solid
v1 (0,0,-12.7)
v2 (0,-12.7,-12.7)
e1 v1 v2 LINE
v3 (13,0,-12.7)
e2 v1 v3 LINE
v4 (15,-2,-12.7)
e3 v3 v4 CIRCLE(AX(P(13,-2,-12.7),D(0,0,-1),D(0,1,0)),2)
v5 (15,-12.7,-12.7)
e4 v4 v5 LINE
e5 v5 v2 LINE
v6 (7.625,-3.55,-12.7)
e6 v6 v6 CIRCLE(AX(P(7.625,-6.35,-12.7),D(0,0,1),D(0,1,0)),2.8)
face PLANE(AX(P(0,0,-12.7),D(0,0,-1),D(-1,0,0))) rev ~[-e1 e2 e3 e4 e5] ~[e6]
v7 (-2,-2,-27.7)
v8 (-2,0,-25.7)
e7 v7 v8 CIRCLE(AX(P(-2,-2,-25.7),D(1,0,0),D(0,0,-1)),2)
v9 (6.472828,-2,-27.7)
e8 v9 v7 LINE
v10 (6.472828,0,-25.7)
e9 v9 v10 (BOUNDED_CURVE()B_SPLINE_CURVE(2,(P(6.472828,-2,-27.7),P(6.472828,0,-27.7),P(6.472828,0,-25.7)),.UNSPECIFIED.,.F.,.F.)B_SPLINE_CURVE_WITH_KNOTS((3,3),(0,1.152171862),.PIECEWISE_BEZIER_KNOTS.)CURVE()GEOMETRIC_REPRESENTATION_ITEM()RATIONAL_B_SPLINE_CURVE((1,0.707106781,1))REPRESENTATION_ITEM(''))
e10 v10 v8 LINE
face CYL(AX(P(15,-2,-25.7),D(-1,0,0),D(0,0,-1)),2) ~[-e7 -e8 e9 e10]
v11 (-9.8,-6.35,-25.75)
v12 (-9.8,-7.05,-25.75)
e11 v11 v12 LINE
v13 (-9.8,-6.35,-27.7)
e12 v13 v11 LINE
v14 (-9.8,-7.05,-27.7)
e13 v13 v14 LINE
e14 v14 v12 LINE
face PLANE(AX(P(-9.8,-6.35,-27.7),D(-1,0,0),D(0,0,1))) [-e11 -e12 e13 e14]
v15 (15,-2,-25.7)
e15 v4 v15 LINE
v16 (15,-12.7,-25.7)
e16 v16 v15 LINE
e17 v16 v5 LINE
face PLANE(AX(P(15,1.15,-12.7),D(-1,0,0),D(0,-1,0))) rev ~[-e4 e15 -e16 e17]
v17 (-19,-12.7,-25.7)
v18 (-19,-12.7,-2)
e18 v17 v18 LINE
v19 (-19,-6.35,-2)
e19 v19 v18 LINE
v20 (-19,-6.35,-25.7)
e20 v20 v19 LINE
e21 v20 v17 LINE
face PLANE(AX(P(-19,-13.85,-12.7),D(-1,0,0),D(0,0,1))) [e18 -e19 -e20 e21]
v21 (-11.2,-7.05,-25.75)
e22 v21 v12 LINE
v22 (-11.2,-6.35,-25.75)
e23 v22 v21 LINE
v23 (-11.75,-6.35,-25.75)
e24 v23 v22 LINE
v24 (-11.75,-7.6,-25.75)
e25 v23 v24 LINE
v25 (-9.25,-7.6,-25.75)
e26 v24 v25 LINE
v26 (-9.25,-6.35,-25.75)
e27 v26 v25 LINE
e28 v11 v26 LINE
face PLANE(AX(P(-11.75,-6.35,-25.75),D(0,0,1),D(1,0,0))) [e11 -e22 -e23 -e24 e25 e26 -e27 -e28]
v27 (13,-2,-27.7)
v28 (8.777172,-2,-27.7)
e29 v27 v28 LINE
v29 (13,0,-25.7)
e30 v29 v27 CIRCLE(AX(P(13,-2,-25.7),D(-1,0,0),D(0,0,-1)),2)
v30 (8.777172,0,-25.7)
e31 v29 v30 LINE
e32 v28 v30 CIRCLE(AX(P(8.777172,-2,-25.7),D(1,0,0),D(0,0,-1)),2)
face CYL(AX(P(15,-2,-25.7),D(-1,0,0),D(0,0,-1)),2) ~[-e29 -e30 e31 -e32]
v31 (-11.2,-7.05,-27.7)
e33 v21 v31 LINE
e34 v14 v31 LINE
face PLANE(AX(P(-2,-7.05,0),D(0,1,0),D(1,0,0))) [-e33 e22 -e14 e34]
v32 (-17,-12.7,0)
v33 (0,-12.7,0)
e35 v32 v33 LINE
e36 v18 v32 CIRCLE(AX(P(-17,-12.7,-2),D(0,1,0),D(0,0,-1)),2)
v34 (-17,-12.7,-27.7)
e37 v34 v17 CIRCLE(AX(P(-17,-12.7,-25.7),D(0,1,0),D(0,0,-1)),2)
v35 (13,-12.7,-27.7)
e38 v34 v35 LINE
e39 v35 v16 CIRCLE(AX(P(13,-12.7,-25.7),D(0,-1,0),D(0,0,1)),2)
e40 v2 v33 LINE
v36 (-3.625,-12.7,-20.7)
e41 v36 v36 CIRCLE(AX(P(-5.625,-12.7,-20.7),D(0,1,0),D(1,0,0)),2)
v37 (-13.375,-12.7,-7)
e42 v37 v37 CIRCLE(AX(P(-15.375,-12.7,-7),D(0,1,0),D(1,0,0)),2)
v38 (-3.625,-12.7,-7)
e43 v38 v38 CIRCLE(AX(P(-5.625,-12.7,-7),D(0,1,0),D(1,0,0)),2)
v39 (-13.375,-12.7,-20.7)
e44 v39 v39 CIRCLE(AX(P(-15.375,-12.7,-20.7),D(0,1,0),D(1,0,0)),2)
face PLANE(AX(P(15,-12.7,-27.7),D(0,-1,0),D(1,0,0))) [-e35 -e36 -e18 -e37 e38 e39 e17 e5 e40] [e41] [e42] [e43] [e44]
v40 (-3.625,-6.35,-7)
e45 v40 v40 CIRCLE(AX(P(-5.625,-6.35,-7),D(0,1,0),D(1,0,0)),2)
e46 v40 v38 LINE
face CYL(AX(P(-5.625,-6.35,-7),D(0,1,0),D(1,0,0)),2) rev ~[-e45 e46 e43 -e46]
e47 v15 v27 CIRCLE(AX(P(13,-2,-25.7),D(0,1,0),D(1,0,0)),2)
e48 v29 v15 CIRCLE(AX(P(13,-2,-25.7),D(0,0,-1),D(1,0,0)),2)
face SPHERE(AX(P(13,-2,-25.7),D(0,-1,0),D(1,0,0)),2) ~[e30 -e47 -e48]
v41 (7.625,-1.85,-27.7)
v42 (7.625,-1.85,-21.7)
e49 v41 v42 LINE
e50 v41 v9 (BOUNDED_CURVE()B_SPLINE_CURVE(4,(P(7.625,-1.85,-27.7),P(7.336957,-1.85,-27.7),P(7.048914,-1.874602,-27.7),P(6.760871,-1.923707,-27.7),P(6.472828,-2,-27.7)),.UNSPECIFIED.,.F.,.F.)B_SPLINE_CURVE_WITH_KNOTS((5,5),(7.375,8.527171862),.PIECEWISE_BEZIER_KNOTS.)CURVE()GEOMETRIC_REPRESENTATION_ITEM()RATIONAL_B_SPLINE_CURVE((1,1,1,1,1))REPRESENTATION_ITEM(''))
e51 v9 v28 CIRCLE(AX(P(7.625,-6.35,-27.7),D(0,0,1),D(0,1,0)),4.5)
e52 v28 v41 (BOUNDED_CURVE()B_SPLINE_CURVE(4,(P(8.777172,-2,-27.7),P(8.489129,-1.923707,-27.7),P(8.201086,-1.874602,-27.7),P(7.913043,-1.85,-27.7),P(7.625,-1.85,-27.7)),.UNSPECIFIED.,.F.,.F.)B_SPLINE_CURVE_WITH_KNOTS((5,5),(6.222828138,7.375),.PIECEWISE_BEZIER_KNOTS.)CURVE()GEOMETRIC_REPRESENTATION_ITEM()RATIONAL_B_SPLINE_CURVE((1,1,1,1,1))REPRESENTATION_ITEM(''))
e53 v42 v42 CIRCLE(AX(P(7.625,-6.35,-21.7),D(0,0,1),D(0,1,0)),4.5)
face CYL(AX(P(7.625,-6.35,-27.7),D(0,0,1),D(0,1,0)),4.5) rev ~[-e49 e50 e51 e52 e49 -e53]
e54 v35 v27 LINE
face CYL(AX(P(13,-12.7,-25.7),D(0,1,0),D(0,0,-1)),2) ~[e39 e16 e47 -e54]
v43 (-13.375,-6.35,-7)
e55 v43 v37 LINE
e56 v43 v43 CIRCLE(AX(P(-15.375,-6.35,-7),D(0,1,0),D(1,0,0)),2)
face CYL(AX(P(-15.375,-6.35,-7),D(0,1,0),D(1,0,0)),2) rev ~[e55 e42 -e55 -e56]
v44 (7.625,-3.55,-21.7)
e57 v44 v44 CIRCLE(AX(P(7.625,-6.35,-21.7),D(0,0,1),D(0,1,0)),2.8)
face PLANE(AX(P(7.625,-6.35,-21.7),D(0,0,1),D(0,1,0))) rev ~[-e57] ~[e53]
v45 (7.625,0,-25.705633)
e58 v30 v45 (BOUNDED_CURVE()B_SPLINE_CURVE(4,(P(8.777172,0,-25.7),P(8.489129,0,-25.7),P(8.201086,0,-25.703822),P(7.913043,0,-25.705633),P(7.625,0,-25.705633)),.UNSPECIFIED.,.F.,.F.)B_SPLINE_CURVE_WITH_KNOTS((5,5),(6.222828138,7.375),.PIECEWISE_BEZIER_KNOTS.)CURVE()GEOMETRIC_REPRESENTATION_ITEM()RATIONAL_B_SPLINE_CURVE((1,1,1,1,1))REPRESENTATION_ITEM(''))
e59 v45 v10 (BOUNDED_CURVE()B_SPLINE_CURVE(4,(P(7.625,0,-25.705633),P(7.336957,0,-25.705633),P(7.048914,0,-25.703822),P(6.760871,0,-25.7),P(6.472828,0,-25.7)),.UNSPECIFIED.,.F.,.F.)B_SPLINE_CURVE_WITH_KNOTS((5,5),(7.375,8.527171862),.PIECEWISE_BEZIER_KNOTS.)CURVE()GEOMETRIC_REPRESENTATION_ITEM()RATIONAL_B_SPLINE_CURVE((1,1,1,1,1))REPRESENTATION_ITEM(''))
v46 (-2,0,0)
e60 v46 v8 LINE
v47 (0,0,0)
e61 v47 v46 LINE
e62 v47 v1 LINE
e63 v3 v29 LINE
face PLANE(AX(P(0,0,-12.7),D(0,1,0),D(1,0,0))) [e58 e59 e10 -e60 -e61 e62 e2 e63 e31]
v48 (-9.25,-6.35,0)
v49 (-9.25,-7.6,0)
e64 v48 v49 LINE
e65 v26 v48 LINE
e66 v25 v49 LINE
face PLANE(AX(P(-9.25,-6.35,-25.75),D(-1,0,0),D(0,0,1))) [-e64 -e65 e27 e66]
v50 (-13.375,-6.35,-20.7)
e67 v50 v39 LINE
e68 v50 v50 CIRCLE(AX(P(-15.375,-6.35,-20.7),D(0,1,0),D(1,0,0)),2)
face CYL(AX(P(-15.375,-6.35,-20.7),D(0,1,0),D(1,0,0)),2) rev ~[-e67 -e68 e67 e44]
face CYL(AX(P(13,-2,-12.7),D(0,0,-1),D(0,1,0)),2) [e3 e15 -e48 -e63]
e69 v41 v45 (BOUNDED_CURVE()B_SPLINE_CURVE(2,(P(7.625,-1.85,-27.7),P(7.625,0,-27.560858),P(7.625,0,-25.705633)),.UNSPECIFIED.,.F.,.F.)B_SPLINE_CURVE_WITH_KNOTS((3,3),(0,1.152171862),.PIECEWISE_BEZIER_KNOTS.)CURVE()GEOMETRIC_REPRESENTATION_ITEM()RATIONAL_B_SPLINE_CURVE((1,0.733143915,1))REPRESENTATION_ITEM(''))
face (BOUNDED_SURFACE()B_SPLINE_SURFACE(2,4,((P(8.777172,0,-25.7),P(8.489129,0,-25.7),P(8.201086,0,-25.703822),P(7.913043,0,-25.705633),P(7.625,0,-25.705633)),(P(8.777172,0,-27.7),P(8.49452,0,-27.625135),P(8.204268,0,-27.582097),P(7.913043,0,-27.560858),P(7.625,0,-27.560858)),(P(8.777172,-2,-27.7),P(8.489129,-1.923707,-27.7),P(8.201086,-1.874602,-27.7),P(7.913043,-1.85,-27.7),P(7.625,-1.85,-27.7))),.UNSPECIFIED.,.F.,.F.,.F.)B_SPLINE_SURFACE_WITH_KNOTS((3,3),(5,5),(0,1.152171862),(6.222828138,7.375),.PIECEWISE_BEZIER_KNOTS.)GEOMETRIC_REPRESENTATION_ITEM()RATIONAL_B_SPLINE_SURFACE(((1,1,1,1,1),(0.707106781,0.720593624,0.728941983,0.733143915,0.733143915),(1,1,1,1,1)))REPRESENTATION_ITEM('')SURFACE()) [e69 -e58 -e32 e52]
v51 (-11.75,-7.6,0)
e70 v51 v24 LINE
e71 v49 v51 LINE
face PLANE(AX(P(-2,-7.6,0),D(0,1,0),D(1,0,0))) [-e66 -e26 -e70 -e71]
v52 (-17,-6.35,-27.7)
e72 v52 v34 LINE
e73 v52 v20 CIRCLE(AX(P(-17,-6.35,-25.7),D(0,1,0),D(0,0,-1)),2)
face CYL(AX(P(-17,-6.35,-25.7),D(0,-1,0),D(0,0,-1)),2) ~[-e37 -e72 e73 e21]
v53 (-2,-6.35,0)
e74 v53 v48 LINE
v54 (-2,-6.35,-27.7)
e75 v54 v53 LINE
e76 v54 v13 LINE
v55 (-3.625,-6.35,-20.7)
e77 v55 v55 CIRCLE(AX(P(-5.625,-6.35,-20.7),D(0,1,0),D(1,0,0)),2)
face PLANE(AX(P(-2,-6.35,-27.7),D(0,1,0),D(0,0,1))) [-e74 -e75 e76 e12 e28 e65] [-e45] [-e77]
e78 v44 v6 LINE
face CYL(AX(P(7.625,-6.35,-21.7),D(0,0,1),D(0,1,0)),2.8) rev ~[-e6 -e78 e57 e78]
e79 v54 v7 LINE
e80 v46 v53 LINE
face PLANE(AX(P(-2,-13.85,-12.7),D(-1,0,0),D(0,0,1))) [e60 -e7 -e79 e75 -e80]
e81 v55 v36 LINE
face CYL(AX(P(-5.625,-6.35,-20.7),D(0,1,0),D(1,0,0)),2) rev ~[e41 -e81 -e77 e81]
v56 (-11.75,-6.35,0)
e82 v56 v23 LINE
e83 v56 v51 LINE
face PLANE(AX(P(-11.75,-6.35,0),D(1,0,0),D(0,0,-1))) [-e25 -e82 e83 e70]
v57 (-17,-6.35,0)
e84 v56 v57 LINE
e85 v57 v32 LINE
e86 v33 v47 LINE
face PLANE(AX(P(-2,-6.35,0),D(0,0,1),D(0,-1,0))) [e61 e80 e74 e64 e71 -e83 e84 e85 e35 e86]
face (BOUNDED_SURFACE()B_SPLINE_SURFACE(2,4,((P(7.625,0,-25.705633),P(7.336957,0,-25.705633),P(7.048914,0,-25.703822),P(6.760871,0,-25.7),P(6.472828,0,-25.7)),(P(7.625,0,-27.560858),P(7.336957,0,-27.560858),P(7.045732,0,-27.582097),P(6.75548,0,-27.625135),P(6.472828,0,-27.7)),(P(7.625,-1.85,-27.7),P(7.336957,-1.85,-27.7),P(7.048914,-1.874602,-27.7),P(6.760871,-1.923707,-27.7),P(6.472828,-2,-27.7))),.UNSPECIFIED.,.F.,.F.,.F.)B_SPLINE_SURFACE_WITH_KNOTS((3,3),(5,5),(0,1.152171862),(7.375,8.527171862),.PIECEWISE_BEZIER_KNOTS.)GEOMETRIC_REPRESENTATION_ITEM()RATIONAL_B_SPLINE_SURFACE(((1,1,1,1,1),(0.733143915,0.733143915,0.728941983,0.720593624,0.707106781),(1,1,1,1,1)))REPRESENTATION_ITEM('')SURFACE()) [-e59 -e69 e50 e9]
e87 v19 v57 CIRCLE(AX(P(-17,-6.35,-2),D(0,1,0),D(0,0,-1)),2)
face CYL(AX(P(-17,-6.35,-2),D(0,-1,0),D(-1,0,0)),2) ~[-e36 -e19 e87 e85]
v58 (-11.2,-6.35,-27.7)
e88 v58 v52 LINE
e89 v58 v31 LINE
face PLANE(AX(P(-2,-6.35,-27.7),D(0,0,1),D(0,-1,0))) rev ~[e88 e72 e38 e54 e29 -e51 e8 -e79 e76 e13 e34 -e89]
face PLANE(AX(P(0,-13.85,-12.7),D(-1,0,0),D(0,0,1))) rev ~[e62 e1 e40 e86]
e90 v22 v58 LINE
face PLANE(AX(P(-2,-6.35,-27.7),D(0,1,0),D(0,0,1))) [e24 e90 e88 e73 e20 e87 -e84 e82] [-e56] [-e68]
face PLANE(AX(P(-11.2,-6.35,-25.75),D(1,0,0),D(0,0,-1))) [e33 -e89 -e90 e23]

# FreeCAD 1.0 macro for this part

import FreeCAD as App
import Part
import Sketcher


def edges_at(feature, points):
    """Names of the edges that pass closest to the given points."""
    edges = feature.Shape.Edges
    near = lambda p: min(range(len(edges)), key=lambda i: edges[i].distToShape(Part.Vertex(*p))[0])
    return sorted({f"Edge{near(p) + 1}" for p in points})


def add_polygon(sketch, points):
    """Adds a closed chain of lines whose ends are joined by coincident constraints."""
    first, n = sketch.GeometryCount, len(points)
    for a, b in zip(points, points[1:] + points[:1]):
        sketch.addGeometry(Part.LineSegment(App.Vector(*a, 0), App.Vector(*b, 0)), False)
    for i in range(n):
        sketch.addConstraint(Sketcher.Constraint("Coincident", first + i, 2, first + (i + 1) % n, 1))

doc = App.newDocument("Part")
body = doc.addObject("PartDesign::Body", "Body")

sketch1 = body.newObject("Sketcher::SketchObject", "Sketch")
sketch1.AttachmentSupport = (doc.getObject("XY_Plane"), [""])
sketch1.MapMode = "FlatFace"
sketch1.AttachmentOffset = App.Placement(App.Vector(0, 0, -12.7), App.Rotation())
add_polygon(sketch1, [(15, 1), (15, -14), (0, -14), (0, 1)])
sketch1.addConstraint([
    Sketcher.Constraint("Vertical", 0),
    Sketcher.Constraint("Horizontal", 1),
    Sketcher.Constraint("Vertical", 2),
    Sketcher.Constraint("Horizontal", 3),
    Sketcher.Constraint("PointOnObject", 1, 2, -2),
    Sketcher.Constraint("Equal", 3, 0),
    Sketcher.Constraint("DistanceX", 1, 2, 1, 1, 15.0),
    Sketcher.Constraint("DistanceY", 0, 2, -1, 1, 13.85),
])
pad1 = body.newObject("PartDesign::Pad", "Pad")
pad1.Profile = sketch1
pad1.Length = 15
pad1.Reversed = True

sketch2 = body.newObject("Sketcher::SketchObject", "Sketch001")
sketch2.AttachmentSupport = (doc.getObject("YZ_Plane"), [""])
sketch2.MapMode = "FlatFace"
add_polygon(sketch2, [(-14, 0), (1, 0), (1, -28), (-14, -28)])
sketch2.addConstraint([
    Sketcher.Constraint("Horizontal", 0),
    Sketcher.Constraint("Vertical", 1),
    Sketcher.Constraint("Horizontal", 2),
    Sketcher.Constraint("Vertical", 3),
    Sketcher.Constraint("PointOnObject", 0, 2, -1),
    Sketcher.Constraint("DistanceX", 0, 1, 0, 2, 15.0),
    Sketcher.Constraint("DistanceY", 1, 2, 1, 1, 27.7),
    Sketcher.Constraint("DistanceX", -1, 1, 0, 2, 1.15),
])
pad2 = body.newObject("PartDesign::Pad", "Pad001")
pad2.Profile = sketch2
pad2.Length = 2
pad2.Reversed = True

sketch3 = body.newObject("Sketcher::SketchObject", "Sketch002")
sketch3.AttachmentSupport = (doc.getObject("YZ_Plane"), [""])
sketch3.MapMode = "FlatFace"
sketch3.AttachmentOffset = App.Placement(App.Vector(0, 0, -2), App.Rotation())
add_polygon(sketch3, [(-14, -28), (-14, 0), (-6, 0), (-6, -28)])
sketch3.addConstraint([
    Sketcher.Constraint("Vertical", 0),
    Sketcher.Constraint("Horizontal", 1),
    Sketcher.Constraint("Vertical", 2),
    Sketcher.Constraint("Horizontal", 3),
    Sketcher.Constraint("PointOnObject", 0, 2, -1),
    Sketcher.Constraint("DistanceX", 1, 1, 1, 2, 7.5),
    Sketcher.Constraint("DistanceY", 0, 1, 0, 2, 27.7),
    Sketcher.Constraint("DistanceX", 0, 2, -1, 1, 13.85),
])
pad3 = body.newObject("PartDesign::Pad", "Pad002")
pad3.Profile = sketch3
pad3.Length = 17
pad3.Reversed = True

sketch4 = body.newObject("Sketcher::SketchObject", "Sketch003")
sketch4.AttachmentSupport = (doc.getObject("XZ_Plane"), [""])
sketch4.MapMode = "FlatFace"
sketch4.AttachmentOffset = App.Placement(App.Vector(0, 0, 6.35), App.Rotation())
add_polygon(sketch4, [(-11.8, 0), (-9.2, 0), (-9.2, -25.8), (-11.8, -25.8)])
sketch4.addConstraint([
    Sketcher.Constraint("Horizontal", 0),
    Sketcher.Constraint("Vertical", 1),
    Sketcher.Constraint("Horizontal", 2),
    Sketcher.Constraint("Vertical", 3),
    Sketcher.Constraint("PointOnObject", 0, 2, -1),
    Sketcher.Constraint("DistanceX", 0, 1, 0, 2, 2.5),
    Sketcher.Constraint("DistanceY", 1, 2, 1, 1, 25.75),
    Sketcher.Constraint("DistanceX", 0, 2, -1, 1, 9.25),
])
pocket1 = body.newObject("PartDesign::Pocket", "Pocket")
pocket1.Profile = sketch4
pocket1.Length = 1.25
pocket1.Reversed = True

sketch5 = body.newObject("Sketcher::SketchObject", "Sketch004")
sketch5.AttachmentSupport = (doc.getObject("XZ_Plane"), [""])
sketch5.MapMode = "FlatFace"
sketch5.AttachmentOffset = App.Placement(App.Vector(0, 0, 6.35), App.Rotation())
add_polygon(sketch5, [(-11.2, -27.7), (-11.2, -25.8), (-9.8, -25.8), (-9.8, -27.7)])
sketch5.addConstraint([
    Sketcher.Constraint("Vertical", 0),
    Sketcher.Constraint("Horizontal", 1),
    Sketcher.Constraint("Vertical", 2),
    Sketcher.Constraint("Horizontal", 3),
    Sketcher.Constraint("DistanceX", 1, 1, 1, 2, 1.4),
    Sketcher.Constraint("DistanceY", 0, 1, 0, 2, 1.95),
    Sketcher.Constraint("DistanceX", 0, 2, -1, 1, 11.2),
    Sketcher.Constraint("DistanceY", 2, 2, -1, 1, 27.7),
])
pocket2 = body.newObject("PartDesign::Pocket", "Pocket001")
pocket2.Profile = sketch5
pocket2.Length = 0.7
pocket2.Reversed = True

sketch6 = body.newObject("Sketcher::SketchObject", "Sketch005")
sketch6.AttachmentSupport = (doc.getObject("XZ_Plane"), [""])
sketch6.MapMode = "FlatFace"
sketch6.AttachmentOffset = App.Placement(App.Vector(0, 0, 6.35), App.Rotation())
sketch6.addGeometry([
    Part.Circle(App.Vector(-5.6, -7, 0), App.Vector(0, 0, 1), 2),
    Part.Circle(App.Vector(-15.4, -7, 0), App.Vector(0, 0, 1), 2),
    Part.Circle(App.Vector(-15.4, -20.7, 0), App.Vector(0, 0, 1), 2),
    Part.Circle(App.Vector(-5.6, -20.7, 0), App.Vector(0, 0, 1), 2),
], False)
sketch6.addConstraint([
    Sketcher.Constraint("Equal", 0, 1),
    Sketcher.Constraint("Equal", 1, 2),
    Sketcher.Constraint("Equal", 2, 3),
    Sketcher.Constraint("Horizontal", 0, 3, 1, 3),
    Sketcher.Constraint("Horizontal", 2, 3, 3, 3),
    Sketcher.Constraint("Vertical", 1, 3, 2, 3),
    Sketcher.Constraint("Vertical", 0, 3, 3, 3),
    Sketcher.Constraint("Diameter", 0, 4.0),
    Sketcher.Constraint("DistanceY", 0, 3, -1, 1, 7.0),
    Sketcher.Constraint("DistanceY", 2, 3, -1, 1, 20.7),
    Sketcher.Constraint("DistanceX", 1, 3, 0, 3, 9.75),
    Sketcher.Constraint("DistanceX", 0, 3, -1, 1, 5.625),
])
pocket3 = body.newObject("PartDesign::Pocket", "Pocket002")
pocket3.Profile = sketch6
pocket3.Length = 10
pocket3.Reversed = True

sketch7 = body.newObject("Sketcher::SketchObject", "Sketch006")
sketch7.AttachmentSupport = (doc.getObject("XY_Plane"), [""])
sketch7.MapMode = "FlatFace"
sketch7.AttachmentOffset = App.Placement(App.Vector(0, 0, -27.7), App.Rotation())
sketch7.addGeometry(Part.Circle(App.Vector(7.6, -6.3, 0), App.Vector(0, 0, 1), 2.8), False)
sketch7.addConstraint([
    Sketcher.Constraint("Diameter", 0, 5.6),
    Sketcher.Constraint("DistanceY", 0, 3, -1, 1, 6.35),
    Sketcher.Constraint("DistanceX", -1, 1, 0, 3, 7.625),
])
doc.recompute()
hole = body.newObject("PartDesign::Hole", "Hole")
hole.Profile = sketch7
hole.ThreadType = "None"
hole.Diameter = 5.6
hole.DepthType = "Dimension"
hole.Depth = 15
hole.DrillPoint = "Flat"
hole.HoleCutType = "Counterbore"
hole.HoleCutDiameter = 9
hole.HoleCutDepth = 6
hole.Reversed = True

sketch8 = body.newObject("Sketcher::SketchObject", "Sketch007")
sketch8.AttachmentSupport = (doc.getObject("XZ_Plane"), [""])
sketch8.MapMode = "FlatFace"
sketch8.AttachmentOffset = App.Placement(App.Vector(0, 0, -1.15), App.Rotation())
add_polygon(sketch8, [(-4, 3), (19, 3), (19, -33), (-4, -33)])
sketch8.addConstraint([
    Sketcher.Constraint("Horizontal", 0),
    Sketcher.Constraint("Vertical", 1),
    Sketcher.Constraint("Horizontal", 2),
    Sketcher.Constraint("Vertical", 3),
    Sketcher.Constraint("DistanceX", 0, 1, 0, 2, 23.0),
    Sketcher.Constraint("DistanceY", 1, 2, 1, 1, 36.0),
    Sketcher.Constraint("DistanceX", -1, 1, 0, 2, 19.0),
    Sketcher.Constraint("DistanceY", -1, 1, 0, 2, 3.3),
])
pocket4 = body.newObject("PartDesign::Pocket", "Pocket003")
pocket4.Profile = sketch8
pocket4.Length = 1.15
pocket4.Reversed = True

sketch9 = body.newObject("Sketcher::SketchObject", "Sketch008")
sketch9.AttachmentSupport = (doc.getObject("XZ_Plane"), [""])
sketch9.MapMode = "FlatFace"
sketch9.AttachmentOffset = App.Placement(App.Vector(0, 0, 13.85), App.Rotation())
add_polygon(sketch9, [(21, -45), (21, 21), (-24, 21), (-24, -45)])
sketch9.addConstraint([
    Sketcher.Constraint("Vertical", 0),
    Sketcher.Constraint("Horizontal", 1),
    Sketcher.Constraint("Vertical", 2),
    Sketcher.Constraint("Horizontal", 3),
    Sketcher.Constraint("DistanceX", 1, 2, 1, 1, 45.0),
    Sketcher.Constraint("DistanceY", 0, 1, 0, 2, 66.0),
    Sketcher.Constraint("DistanceX", -1, 1, 0, 2, 21.0),
    Sketcher.Constraint("DistanceY", -1, 1, 0, 2, 21.3),
])
pocket5 = body.newObject("PartDesign::Pocket", "Pocket004")
pocket5.Profile = sketch9
pocket5.Length = 1.15
doc.recompute()

fillet = body.newObject("PartDesign::Fillet", "Fillet")
fillet.Base = (pocket5, edges_at(pocket5, [
    (-19, -9.525, -27.7),
    (-19, -9.525, 0),
    (15, -6.35, -27.7),
    (15, 0, -20.2),
    (6.5, 0, -27.7),
]))
fillet.Radius = 2

doc.recompute()
